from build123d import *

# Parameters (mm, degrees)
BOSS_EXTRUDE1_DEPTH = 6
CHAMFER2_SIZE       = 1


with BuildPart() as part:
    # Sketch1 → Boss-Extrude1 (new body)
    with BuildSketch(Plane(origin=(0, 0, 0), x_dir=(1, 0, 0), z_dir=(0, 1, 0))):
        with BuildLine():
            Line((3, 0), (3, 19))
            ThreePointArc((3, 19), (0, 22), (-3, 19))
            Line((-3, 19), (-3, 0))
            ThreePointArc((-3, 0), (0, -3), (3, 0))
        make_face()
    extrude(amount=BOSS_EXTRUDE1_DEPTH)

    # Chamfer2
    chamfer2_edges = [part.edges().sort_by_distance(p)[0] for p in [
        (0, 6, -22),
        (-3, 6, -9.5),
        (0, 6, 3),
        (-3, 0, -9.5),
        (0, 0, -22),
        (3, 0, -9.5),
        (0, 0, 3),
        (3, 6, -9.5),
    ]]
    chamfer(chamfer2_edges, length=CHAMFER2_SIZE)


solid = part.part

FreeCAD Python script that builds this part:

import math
import FreeCAD as App
import Part
import Sketcher


def edges_at(feature, points):
    """Names of the edges that pass closest to the given points."""
    edges = feature.Shape.Edges
    near = lambda p: min(range(len(edges)), key=lambda i: edges[i].distToShape(Part.Vertex(*p))[0])
    return sorted({f"Edge{near(p) + 1}" for p in points})

doc = App.newDocument("Part")
params = doc.addObject("Spreadsheet::Sheet", "Params")
for row, (alias, value) in enumerate([
    ("sketch1_radius", "3 mm"),
    ("sketch1_height", "19 mm"),
    ("pad1_length", "6 mm"),
    ("chamfer_size", "1 mm"),
], start=1):
    params.set(f"A{row}", alias)
    params.set(f"B{row}", "=" + value)
    params.setAlias(f"B{row}", alias)

body = doc.addObject("PartDesign::Body", "Body")

# Sketch on XZ plane
sketch1 = doc.addObject("Sketcher::SketchObject", "Sketch")
body.addObject(sketch1)
sketch1.AttachmentSupport = (doc.XZ_Plane, [""])
sketch1.MapMode = "FlatFace"
sketch1.addGeometry(Part.LineSegment(App.Vector(3, 0, 0), App.Vector(3, -19, 0)), False)
sketch1.addGeometry(Part.ArcOfCircle(Part.Circle(App.Vector(0, -19, 0), App.Vector(0, 0, 1), 3), math.radians(180), math.radians(360)), False)
sketch1.addGeometry(Part.LineSegment(App.Vector(-3, -19, 0), App.Vector(-3, 0, 0)), False)
sketch1.addGeometry(Part.ArcOfCircle(Part.Circle(App.Vector(0, 0, 0), App.Vector(0, 0, 1), 3), math.radians(0), math.radians(180)), False)
sketch1.addConstraint(Sketcher.Constraint("Tangent", 0, 2, 1, 2))
sketch1.addConstraint(Sketcher.Constraint("Tangent", 1, 1, 2, 1))
sketch1.addConstraint(Sketcher.Constraint("Tangent", 2, 2, 3, 2))
sketch1.addConstraint(Sketcher.Constraint("Tangent", 3, 1, 0, 1))
sketch1.addConstraint(Sketcher.Constraint("Vertical", 0))
sketch1.addConstraint(Sketcher.Constraint("Vertical", 2))
sketch1.addConstraint(Sketcher.Constraint("Coincident", 3, 3, -1, 1))
sketch1.addConstraint(Sketcher.Constraint("Radius", 1, 3.0))
sketch1.addConstraint(Sketcher.Constraint("DistanceY", 0, 2, 0, 1, 19.0))
sketch1.setExpression("Constraints[7]", "Params.sketch1_radius")
sketch1.setExpression("Constraints[8]", "Params.sketch1_height")
pad1 = doc.addObject("PartDesign::Pad", "Pad")
body.addObject(pad1)
pad1.Profile = sketch1
pad1.setExpression("Length", "Params.pad1_length")
pad1.Reversed = True
doc.recompute()

chamfer = doc.addObject("PartDesign::Chamfer", "Chamfer")
body.addObject(chamfer)
chamfer.Base = (pad1, edges_at(pad1, [
    (0, 6, -22),
    (-3, 6, -9.5),
    (0, 6, 3),
    (-3, 0, -9.5),
    (0, 0, -22),
    (3, 0, -9.5),
    (0, 0, 3),
    (3, 6, -9.5),
]))
chamfer.setExpression("Size", "Params.chamfer_size")

doc.recompute()
